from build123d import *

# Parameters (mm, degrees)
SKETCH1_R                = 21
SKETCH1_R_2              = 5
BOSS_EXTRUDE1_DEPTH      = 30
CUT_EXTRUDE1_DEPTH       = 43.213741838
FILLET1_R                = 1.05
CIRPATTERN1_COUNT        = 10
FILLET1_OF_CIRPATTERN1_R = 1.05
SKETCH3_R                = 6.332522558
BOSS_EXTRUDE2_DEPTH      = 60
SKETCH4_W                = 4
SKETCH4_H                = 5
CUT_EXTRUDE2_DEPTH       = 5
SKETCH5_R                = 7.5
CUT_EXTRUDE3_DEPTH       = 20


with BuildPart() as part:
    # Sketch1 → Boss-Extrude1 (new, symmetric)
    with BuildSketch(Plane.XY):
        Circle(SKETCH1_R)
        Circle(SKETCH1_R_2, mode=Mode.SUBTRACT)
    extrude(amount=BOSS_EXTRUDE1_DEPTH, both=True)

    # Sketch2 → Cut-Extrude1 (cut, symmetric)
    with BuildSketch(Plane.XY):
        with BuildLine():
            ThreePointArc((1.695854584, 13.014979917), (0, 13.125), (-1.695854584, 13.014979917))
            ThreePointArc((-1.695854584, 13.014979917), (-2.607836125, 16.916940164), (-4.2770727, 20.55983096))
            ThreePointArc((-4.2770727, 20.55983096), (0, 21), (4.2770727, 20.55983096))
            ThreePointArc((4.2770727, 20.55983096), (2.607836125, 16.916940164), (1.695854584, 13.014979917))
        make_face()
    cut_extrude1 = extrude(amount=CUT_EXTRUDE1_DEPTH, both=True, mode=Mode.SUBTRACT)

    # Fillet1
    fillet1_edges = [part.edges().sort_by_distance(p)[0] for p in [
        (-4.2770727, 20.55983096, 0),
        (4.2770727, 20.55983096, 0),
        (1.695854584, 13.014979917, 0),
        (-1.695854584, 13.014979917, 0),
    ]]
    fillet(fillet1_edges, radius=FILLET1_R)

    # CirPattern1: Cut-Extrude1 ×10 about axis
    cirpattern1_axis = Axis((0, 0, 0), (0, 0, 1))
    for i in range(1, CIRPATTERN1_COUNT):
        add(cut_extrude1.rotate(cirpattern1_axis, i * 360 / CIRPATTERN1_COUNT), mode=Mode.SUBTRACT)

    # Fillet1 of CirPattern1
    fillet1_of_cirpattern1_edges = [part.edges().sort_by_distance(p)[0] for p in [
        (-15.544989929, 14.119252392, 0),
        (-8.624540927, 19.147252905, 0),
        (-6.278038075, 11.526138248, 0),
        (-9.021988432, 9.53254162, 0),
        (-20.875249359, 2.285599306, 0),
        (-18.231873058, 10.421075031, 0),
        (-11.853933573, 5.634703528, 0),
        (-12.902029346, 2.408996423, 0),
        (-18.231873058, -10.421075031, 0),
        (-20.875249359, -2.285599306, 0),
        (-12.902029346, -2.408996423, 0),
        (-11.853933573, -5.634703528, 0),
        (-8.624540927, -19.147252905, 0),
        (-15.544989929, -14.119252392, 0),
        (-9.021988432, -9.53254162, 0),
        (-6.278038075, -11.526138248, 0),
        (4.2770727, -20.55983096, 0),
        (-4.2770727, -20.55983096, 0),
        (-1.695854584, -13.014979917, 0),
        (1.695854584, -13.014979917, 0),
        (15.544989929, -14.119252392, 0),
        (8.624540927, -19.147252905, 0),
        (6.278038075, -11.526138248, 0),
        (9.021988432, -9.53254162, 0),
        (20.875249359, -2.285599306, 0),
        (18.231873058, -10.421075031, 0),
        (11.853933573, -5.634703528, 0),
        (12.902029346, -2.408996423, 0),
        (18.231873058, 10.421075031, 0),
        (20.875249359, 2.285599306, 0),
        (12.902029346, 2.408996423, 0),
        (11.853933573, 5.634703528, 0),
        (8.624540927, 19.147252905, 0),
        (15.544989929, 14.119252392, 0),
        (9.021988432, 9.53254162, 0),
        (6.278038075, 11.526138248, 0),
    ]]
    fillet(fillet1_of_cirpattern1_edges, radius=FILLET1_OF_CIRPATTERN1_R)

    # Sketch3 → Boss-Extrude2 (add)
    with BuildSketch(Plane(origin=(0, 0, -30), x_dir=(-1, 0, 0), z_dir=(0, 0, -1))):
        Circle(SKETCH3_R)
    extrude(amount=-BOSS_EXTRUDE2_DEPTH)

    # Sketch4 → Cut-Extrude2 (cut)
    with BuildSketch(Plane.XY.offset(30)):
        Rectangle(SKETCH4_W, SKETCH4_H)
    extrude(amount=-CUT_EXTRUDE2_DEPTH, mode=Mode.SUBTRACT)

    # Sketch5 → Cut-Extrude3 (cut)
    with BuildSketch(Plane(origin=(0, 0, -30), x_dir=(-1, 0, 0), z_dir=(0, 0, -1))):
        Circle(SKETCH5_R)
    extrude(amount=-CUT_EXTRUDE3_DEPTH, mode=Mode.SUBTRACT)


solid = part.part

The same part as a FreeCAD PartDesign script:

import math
import FreeCAD as App
import Part
import Sketcher
Q = App.Units.Quantity


def edges_at(feature, points):
    """Names of the edges that pass closest to the given points."""
    edges = feature.Shape.Edges
    near = lambda p: min(range(len(edges)), key=lambda i: edges[i].distToShape(Part.Vertex(*p))[0])
    return sorted({f"Edge{near(p) + 1}" for p in points})

doc = App.newDocument("Part")
params = doc.addObject("Spreadsheet::Sheet", "Params")
for row, (alias, value) in enumerate([
    ("sketch1_diameter", "42 mm"),
    ("sketch1_diameter2", "10 mm"),
    ("pad1_length", "60 mm"),
    ("sketch2_radius", "21 mm"),
    ("pocket1_length", "86.427484 mm"),
    ("fillet_radius", "1.05 mm"),
    ("fillet2_radius", "1.05 mm"),
    ("pad2_length", "60 mm"),
    ("sketch4_width", "4 mm"),
    ("sketch4_height", "5 mm"),
    ("pocket2_length", "5 mm"),
    ("sketch5_diameter", "15 mm"),
    ("pocket3_length", "20 mm"),
], start=1):
    params.set(f"A{row}", alias)
    params.set(f"B{row}", "=" + value)
    params.setAlias(f"B{row}", alias)

body = doc.addObject("PartDesign::Body", "Body")

# Sketch on XY plane
sketch1 = doc.addObject("Sketcher::SketchObject", "Sketch")
body.addObject(sketch1)
sketch1.AttachmentSupport = (doc.XY_Plane, [""])
sketch1.MapMode = "FlatFace"
sketch1.addGeometry([
    Part.Circle(App.Vector(0, 0, 0), App.Vector(0, 0, 1), 21),
    Part.Circle(App.Vector(0, 0, 0), App.Vector(0, 0, 1), 5),
], False)
sketch1.addConstraint([
    Sketcher.Constraint("Coincident", 0, 3, -1, 1),
    Sketcher.Constraint("Coincident", 1, 3, -1, 1),
    Sketcher.Constraint("Diameter", 0, Q("42 mm")),
    Sketcher.Constraint("Diameter", 1, Q("10 mm")),
])
sketch1.setExpression("Constraints[2]", "Params.sketch1_diameter")
sketch1.setExpression("Constraints[3]", "Params.sketch1_diameter2")
pad1 = doc.addObject("PartDesign::Pad", "Pad")
body.addObject(pad1)
pad1.Profile = sketch1
pad1.setExpression("Length", "Params.pad1_length")
pad1.Midplane = True

# Sketch on XY plane
sketch2 = doc.addObject("Sketcher::SketchObject", "Sketch001")
body.addObject(sketch2)
sketch2.AttachmentSupport = (doc.XY_Plane, [""])
sketch2.MapMode = "FlatFace"
sketch2.addGeometry([
    Part.ArcOfCircle(Part.Circle(App.Vector(0, 0, 0), App.Vector(0, 0, 1), 13.1), math.radians(82.58), math.radians(97.42)),
    Part.ArcOfCircle(Part.Circle(App.Vector(21.6, 10.4, 0), App.Vector(0, 0, 1), 20.1), math.radians(150), math.radians(173)),
    Part.ArcOfCircle(Part.Circle(App.Vector(0, 0, 0), App.Vector(0, 0, 1), 21), math.radians(78), math.radians(102)),
    Part.ArcOfCircle(Part.Circle(App.Vector(-21.6, 10.4, 0), App.Vector(0, 0, 1), 20.1), math.radians(7), math.radians(30)),
], False)
sketch2.addConstraint([
    Sketcher.Constraint("Coincident", 0, 1, 1, 2),
    Sketcher.Constraint("Coincident", 1, 1, 2, 1),
    Sketcher.Constraint("Coincident", 2, 2, 3, 2),
    Sketcher.Constraint("Coincident", 3, 1, 0, 2),
    Sketcher.Constraint("Coincident", 0, 3, -1, 1),
    Sketcher.Constraint("Coincident", 2, 3, -1, 1),
    Sketcher.Constraint("Equal", 1, 3),
    Sketcher.Constraint("Symmetric", 1, 3, 3, 3, -2),
    Sketcher.Constraint("Radius", 2, Q("21 mm")),
    Sketcher.Constraint("Radius", 0, Q("13.125 mm")),
    Sketcher.Constraint("Radius", 1, Q("20.062602 mm")),
    Sketcher.Constraint("DistanceY", 1, 3, 1, 1, Q("10.137099 mm")),
    Sketcher.Constraint("DistanceY", -1, 1, 1, 3, Q("10.422732 mm")),
])
sketch2.setExpression("Constraints[8]", "Params.sketch2_radius")
pocket1 = doc.addObject("PartDesign::Pocket", "Pocket")
body.addObject(pocket1)
pocket1.Profile = sketch2
pocket1.setExpression("Length", "Params.pocket1_length")
pocket1.Midplane = True
doc.recompute()

fillet = doc.addObject("PartDesign::Fillet", "Fillet")
body.addObject(fillet)
fillet.Base = (pocket1, edges_at(pocket1, [
    (-4.277, 20.56, 0),
    (4.277, 20.56, 0),
    (1.696, 13.015, 0),
    (-1.696, 13.015, 0),
]))
fillet.setExpression("Radius", "Params.fillet_radius")
doc.recompute()

polarpattern = doc.addObject("PartDesign::PolarPattern", "PolarPattern")
body.addObject(polarpattern)
polarpattern.Originals = [pocket1]
polarpattern.Axis = (doc.Z_Axis, [""])
polarpattern.Angle = 360
polarpattern.Occurrences = 10
body.Tip = polarpattern
doc.recompute()

fillet2 = doc.addObject("PartDesign::Fillet", "Fillet001")
body.addObject(fillet2)
fillet2.Base = (polarpattern, edges_at(polarpattern, [
    (-15.545, 14.119, 0),
    (-8.625, 19.147, 0),
    (-6.278, 11.526, 0),
    (-9.022, 9.533, 0),
    (-20.875, 2.286, 0),
    (-18.232, 10.421, 0),
    (-11.854, 5.635, 0),
    (-12.902, 2.409, 0),
    (-18.232, -10.421, 0),
    (-20.875, -2.286, 0),
    (-12.902, -2.409, 0),
    (-11.854, -5.635, 0),
    (-8.625, -19.147, 0),
    (-15.545, -14.119, 0),
    (-9.022, -9.533, 0),
    (-6.278, -11.526, 0),
    (4.277, -20.56, 0),
    (-4.277, -20.56, 0),
    (-1.696, -13.015, 0),
    (1.696, -13.015, 0),
    (15.545, -14.119, 0),
    (8.625, -19.147, 0),
    (6.278, -11.526, 0),
    (9.022, -9.533, 0),
    (20.875, -2.286, 0),
    (18.232, -10.421, 0),
    (11.854, -5.635, 0),
    (12.902, -2.409, 0),
    (18.232, 10.421, 0),
    (20.875, 2.286, 0),
    (12.902, 2.409, 0),
    (11.854, 5.635, 0),
    (8.625, 19.147, 0),
    (15.545, 14.119, 0),
    (9.022, 9.533, 0),
    (6.278, 11.526, 0),
]))
fillet2.setExpression("Radius", "Params.fillet2_radius")

# Sketch on XY plane
sketch3 = doc.addObject("Sketcher::SketchObject", "Sketch002")
body.addObject(sketch3)
sketch3.AttachmentSupport = (doc.XY_Plane, [""])
sketch3.MapMode = "FlatFace"
sketch3.AttachmentOffset = App.Placement(App.Vector(0, 0, -30), App.Rotation())
sketch3.addGeometry(Part.Circle(App.Vector(0, 0, 0), App.Vector(0, 0, 1), 6), False)
sketch3.addConstraint([
    Sketcher.Constraint("Coincident", 0, 3, -1, 1),
    Sketcher.Constraint("Diameter", 0, Q("12.665045 mm")),
])
pad2 = doc.addObject("PartDesign::Pad", "Pad001")
body.addObject(pad2)
pad2.Profile = sketch3
pad2.setExpression("Length", "Params.pad2_length")

# Sketch on XY plane
sketch4 = doc.addObject("Sketcher::SketchObject", "Sketch003")
body.addObject(sketch4)
sketch4.AttachmentSupport = (doc.XY_Plane, [""])
sketch4.MapMode = "FlatFace"
sketch4.AttachmentOffset = App.Placement(App.Vector(0, 0, 30), App.Rotation())
sketch4.addGeometry([
    Part.LineSegment(App.Vector(-2, 2.5, 0), App.Vector(-2, -2.5, 0)),
    Part.LineSegment(App.Vector(-2, -2.5, 0), App.Vector(2, -2.5, 0)),
    Part.LineSegment(App.Vector(2, -2.5, 0), App.Vector(2, 2.5, 0)),
    Part.LineSegment(App.Vector(2, 2.5, 0), App.Vector(-2, 2.5, 0)),
], False)
sketch4.addConstraint([
    Sketcher.Constraint("Coincident", 0, 2, 1, 1),
    Sketcher.Constraint("Coincident", 1, 2, 2, 1),
    Sketcher.Constraint("Coincident", 2, 2, 3, 1),
    Sketcher.Constraint("Coincident", 3, 2, 0, 1),
    Sketcher.Constraint("Vertical", 0),
    Sketcher.Constraint("Horizontal", 1),
    Sketcher.Constraint("Vertical", 2),
    Sketcher.Constraint("Horizontal", 3),
    Sketcher.Constraint("Symmetric", 0, 2, 2, 2, -1, 1),
    Sketcher.Constraint("DistanceX", 1, 1, 1, 2, Q("4 mm")),
    Sketcher.Constraint("DistanceY", 0, 2, 0, 1, Q("5 mm")),
])
sketch4.setExpression("Constraints[9]", "Params.sketch4_width")
sketch4.setExpression("Constraints[10]", "Params.sketch4_height")
pocket2 = doc.addObject("PartDesign::Pocket", "Pocket001")
body.addObject(pocket2)
pocket2.Profile = sketch4
pocket2.setExpression("Length", "Params.pocket2_length")

# Sketch on XY plane
sketch5 = doc.addObject("Sketcher::SketchObject", "Sketch004")
body.addObject(sketch5)
sketch5.AttachmentSupport = (doc.XY_Plane, [""])
sketch5.MapMode = "FlatFace"
sketch5.AttachmentOffset = App.Placement(App.Vector(0, 0, -30), App.Rotation())
sketch5.addGeometry(Part.Circle(App.Vector(0, 0, 0), App.Vector(0, 0, 1), 8), False)
sketch5.addConstraint([
    Sketcher.Constraint("Coincident", 0, 3, -1, 1),
    Sketcher.Constraint("Diameter", 0, Q("15 mm")),
])
sketch5.setExpression("Constraints[1]", "Params.sketch5_diameter")
pocket3 = doc.addObject("PartDesign::Pocket", "Pocket002")
body.addObject(pocket3)
pocket3.Profile = sketch5
pocket3.setExpression("Length", "Params.pocket3_length")
pocket3.Reversed = True

doc.recompute()
